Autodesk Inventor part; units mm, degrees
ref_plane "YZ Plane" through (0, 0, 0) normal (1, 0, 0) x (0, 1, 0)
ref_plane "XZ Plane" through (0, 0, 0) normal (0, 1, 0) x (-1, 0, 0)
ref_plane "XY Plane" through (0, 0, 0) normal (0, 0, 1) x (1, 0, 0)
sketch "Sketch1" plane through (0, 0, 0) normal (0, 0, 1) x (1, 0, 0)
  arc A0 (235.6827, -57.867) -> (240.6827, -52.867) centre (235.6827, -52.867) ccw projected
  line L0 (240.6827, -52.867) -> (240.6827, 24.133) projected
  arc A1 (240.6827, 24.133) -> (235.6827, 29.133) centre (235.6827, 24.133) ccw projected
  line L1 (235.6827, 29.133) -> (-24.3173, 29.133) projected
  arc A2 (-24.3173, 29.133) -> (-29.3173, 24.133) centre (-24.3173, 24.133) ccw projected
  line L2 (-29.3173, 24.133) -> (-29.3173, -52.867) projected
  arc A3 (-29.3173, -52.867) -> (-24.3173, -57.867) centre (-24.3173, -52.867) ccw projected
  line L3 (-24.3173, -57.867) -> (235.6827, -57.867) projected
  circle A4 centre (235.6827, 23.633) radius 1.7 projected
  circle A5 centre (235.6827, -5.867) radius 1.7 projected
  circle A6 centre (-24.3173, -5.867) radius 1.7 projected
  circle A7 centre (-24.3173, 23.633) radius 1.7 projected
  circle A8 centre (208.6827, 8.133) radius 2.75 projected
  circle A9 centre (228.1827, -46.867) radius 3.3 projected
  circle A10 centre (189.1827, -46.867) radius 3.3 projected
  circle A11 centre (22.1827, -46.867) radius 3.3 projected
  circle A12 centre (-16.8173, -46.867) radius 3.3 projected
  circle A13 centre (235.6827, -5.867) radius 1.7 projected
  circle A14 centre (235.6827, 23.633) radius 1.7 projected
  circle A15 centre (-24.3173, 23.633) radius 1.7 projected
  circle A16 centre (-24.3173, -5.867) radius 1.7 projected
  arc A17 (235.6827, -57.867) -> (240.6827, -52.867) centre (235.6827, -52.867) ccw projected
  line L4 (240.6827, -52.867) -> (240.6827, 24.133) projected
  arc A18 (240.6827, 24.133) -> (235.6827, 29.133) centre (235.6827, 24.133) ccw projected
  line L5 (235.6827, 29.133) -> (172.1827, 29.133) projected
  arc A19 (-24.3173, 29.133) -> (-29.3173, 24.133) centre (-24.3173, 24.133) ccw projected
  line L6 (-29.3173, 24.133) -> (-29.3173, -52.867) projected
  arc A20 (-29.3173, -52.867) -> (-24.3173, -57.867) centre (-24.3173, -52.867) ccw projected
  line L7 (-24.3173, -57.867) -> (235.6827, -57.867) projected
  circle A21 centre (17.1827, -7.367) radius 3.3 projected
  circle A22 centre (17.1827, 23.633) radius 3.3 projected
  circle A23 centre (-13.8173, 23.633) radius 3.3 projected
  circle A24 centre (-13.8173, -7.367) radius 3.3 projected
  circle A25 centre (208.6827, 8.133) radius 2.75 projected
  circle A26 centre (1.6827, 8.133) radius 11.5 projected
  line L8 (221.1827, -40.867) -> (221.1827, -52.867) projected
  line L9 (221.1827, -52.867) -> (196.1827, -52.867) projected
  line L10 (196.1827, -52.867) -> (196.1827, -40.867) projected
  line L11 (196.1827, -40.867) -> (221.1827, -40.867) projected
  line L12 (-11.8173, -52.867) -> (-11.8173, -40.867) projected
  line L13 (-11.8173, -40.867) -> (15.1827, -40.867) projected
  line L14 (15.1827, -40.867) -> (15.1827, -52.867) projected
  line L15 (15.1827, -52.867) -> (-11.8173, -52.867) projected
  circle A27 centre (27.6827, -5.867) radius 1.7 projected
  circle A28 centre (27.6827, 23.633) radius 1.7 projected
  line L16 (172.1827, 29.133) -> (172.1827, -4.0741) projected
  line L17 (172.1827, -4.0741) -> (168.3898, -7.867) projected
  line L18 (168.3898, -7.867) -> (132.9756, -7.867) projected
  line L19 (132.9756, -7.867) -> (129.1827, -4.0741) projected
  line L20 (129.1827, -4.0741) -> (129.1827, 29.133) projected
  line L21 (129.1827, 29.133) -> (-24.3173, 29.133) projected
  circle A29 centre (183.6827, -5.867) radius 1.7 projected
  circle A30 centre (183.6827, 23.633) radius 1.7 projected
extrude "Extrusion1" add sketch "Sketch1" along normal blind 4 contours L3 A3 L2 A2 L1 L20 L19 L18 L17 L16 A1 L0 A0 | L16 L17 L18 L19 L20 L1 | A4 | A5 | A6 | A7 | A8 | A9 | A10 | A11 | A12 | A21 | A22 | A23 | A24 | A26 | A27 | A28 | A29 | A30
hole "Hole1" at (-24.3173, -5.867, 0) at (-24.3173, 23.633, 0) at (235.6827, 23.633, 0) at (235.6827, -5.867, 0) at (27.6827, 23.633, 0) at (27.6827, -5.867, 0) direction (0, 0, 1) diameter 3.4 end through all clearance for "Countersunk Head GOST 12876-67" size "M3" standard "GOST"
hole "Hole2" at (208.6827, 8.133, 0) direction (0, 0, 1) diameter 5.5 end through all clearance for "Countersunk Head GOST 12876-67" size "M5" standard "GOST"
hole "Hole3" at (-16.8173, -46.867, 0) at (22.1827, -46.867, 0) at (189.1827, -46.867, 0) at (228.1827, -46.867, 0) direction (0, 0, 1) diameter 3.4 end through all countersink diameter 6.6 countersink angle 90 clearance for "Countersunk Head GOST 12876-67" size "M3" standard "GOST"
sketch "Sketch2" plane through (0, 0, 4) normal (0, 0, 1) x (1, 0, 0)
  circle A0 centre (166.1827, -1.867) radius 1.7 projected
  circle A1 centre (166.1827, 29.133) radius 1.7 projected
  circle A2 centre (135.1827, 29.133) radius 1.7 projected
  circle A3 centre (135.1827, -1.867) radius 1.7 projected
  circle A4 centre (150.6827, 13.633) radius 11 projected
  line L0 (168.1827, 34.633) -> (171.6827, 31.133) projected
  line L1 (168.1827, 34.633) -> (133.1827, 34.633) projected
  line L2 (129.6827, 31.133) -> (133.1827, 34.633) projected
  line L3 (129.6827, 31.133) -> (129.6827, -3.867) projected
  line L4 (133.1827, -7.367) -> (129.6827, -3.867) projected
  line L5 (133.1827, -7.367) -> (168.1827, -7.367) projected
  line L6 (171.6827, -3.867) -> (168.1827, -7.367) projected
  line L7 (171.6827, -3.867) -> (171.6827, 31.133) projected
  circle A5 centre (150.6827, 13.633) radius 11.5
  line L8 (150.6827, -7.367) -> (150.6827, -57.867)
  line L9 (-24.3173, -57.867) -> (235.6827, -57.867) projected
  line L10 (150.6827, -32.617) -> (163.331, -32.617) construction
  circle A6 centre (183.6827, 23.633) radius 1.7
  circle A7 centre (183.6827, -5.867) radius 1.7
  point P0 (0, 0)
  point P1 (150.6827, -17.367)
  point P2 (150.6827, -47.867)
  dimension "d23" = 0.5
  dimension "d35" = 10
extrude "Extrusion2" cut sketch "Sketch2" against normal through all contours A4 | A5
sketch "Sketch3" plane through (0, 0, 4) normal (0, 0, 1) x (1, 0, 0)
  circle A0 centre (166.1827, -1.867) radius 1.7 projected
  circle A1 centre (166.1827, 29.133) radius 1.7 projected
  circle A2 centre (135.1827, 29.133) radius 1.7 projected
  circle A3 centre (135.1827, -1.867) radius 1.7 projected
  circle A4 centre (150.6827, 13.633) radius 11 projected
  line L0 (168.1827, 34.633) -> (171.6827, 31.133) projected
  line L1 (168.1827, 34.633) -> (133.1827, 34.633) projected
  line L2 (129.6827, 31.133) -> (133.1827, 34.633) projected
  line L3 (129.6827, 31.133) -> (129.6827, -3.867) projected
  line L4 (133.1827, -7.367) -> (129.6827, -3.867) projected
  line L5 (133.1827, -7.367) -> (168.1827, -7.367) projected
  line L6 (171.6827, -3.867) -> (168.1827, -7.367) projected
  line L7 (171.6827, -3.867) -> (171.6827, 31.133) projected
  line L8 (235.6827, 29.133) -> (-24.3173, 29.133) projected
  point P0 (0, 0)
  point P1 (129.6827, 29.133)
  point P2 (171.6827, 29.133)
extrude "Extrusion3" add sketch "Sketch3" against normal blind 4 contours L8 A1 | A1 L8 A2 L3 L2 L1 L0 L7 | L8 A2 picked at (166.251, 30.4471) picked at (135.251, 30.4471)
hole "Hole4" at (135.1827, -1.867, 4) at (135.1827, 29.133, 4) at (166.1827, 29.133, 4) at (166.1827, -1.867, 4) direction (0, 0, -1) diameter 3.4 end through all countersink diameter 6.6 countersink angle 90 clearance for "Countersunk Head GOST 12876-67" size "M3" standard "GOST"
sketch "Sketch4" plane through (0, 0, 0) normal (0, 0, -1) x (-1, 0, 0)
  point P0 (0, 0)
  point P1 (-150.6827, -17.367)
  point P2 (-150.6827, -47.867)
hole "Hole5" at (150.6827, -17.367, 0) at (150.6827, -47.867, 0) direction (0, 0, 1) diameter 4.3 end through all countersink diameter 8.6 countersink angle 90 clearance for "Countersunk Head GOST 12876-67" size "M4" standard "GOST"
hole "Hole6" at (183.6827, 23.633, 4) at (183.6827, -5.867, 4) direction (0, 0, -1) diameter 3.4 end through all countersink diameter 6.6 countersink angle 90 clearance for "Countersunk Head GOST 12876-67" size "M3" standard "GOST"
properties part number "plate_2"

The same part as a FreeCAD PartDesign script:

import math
import FreeCAD as App
import Part
import Sketcher

doc = App.newDocument("Part")
body = doc.addObject("PartDesign::Body", "Body")

sketch1 = doc.addObject("Sketcher::SketchObject", "Sketch")
body.addObject(sketch1)
sketch1.AttachmentSupport = (doc.XY_Plane, [""])
sketch1.MapMode = "FlatFace"
sketch1.addGeometry([
    Part.LineSegment(App.Vector(-24, -58, 0), App.Vector(236, -58, 0)),
    Part.ArcOfCircle(Part.Circle(App.Vector(236, -53, 0), App.Vector(0, 0, 1), 5), math.radians(-90), math.radians(0)),
    Part.LineSegment(App.Vector(241, -53, 0), App.Vector(241, 24, 0)),
    Part.ArcOfCircle(Part.Circle(App.Vector(236, 24, 0), App.Vector(0, 0, 1), 5), math.radians(0), math.radians(90)),
    Part.LineSegment(App.Vector(236, 29, 0), App.Vector(-24, 29, 0)),
    Part.ArcOfCircle(Part.Circle(App.Vector(-24, 24, 0), App.Vector(0, 0, 1), 5), math.radians(90), math.radians(180)),
    Part.LineSegment(App.Vector(-29, 24, 0), App.Vector(-29, -53, 0)),
    Part.ArcOfCircle(Part.Circle(App.Vector(-24, -53, 0), App.Vector(0, 0, 1), 5), math.radians(180), math.radians(270)),
    Part.LineSegment(App.Vector(15, -53, 0), App.Vector(-12, -53, 0)),
    Part.LineSegment(App.Vector(-12, -53, 0), App.Vector(-12, -41, 0)),
    Part.LineSegment(App.Vector(-12, -41, 0), App.Vector(15, -41, 0)),
    Part.LineSegment(App.Vector(15, -41, 0), App.Vector(15, -53, 0)),
    Part.LineSegment(App.Vector(196, -41, 0), App.Vector(221, -41, 0)),
    Part.LineSegment(App.Vector(221, -41, 0), App.Vector(221, -53, 0)),
    Part.LineSegment(App.Vector(221, -53, 0), App.Vector(196, -53, 0)),
    Part.LineSegment(App.Vector(196, -53, 0), App.Vector(196, -41, 0)),
], False)
sketch1.addConstraint([
    Sketcher.Constraint("Tangent", 0, 2, 1, 1),
    Sketcher.Constraint("Tangent", 1, 2, 2, 1),
    Sketcher.Constraint("Tangent", 2, 2, 3, 1),
    Sketcher.Constraint("Tangent", 3, 2, 4, 1),
    Sketcher.Constraint("Tangent", 4, 2, 5, 1),
    Sketcher.Constraint("Tangent", 5, 2, 6, 1),
    Sketcher.Constraint("Tangent", 6, 2, 7, 1),
    Sketcher.Constraint("Tangent", 7, 2, 0, 1),
    Sketcher.Constraint("Coincident", 8, 2, 9, 1),
    Sketcher.Constraint("Coincident", 9, 2, 10, 1),
    Sketcher.Constraint("Coincident", 10, 2, 11, 1),
    Sketcher.Constraint("Coincident", 11, 2, 8, 1),
    Sketcher.Constraint("Coincident", 12, 2, 13, 1),
    Sketcher.Constraint("Coincident", 13, 2, 14, 1),
    Sketcher.Constraint("Coincident", 14, 2, 15, 1),
    Sketcher.Constraint("Coincident", 15, 2, 12, 1),
    Sketcher.Constraint("Horizontal", 0),
    Sketcher.Constraint("Vertical", 2),
    Sketcher.Constraint("Horizontal", 4),
    Sketcher.Constraint("Vertical", 6),
    Sketcher.Constraint("Horizontal", 8),
    Sketcher.Constraint("Vertical", 9),
    Sketcher.Constraint("Horizontal", 10),
    Sketcher.Constraint("Vertical", 11),
    Sketcher.Constraint("Horizontal", 12),
    Sketcher.Constraint("Vertical", 13),
    Sketcher.Constraint("Horizontal", 14),
    Sketcher.Constraint("Vertical", 15),
    Sketcher.Constraint("Equal", 1, 3),
    Sketcher.Constraint("Equal", 3, 5),
    Sketcher.Constraint("Equal", 5, 7),
    Sketcher.Constraint("Horizontal", 6, 2, 8, 2),
    Sketcher.Constraint("Horizontal", 10, 2, 12, 2),
    Sketcher.Constraint("Horizontal", 11, 2, 13, 2),
    Sketcher.Constraint("Radius", 1, 5.0),
    Sketcher.Constraint("DistanceX", 0, 1, 0, 2, 260.0),
    Sketcher.Constraint("DistanceX", 8, 2, 8, 1, 27.0),
    Sketcher.Constraint("DistanceX", 12, 1, 12, 2, 25.0),
    Sketcher.Constraint("DistanceY", 2, 1, 2, 2, 77.0),
    Sketcher.Constraint("DistanceY", 9, 1, 9, 2, 12.0),
    Sketcher.Constraint("DistanceX", 7, 3, 8, 2, 12.5),
    Sketcher.Constraint("DistanceX", 12, 2, 1, 3, 14.5),
    Sketcher.Constraint("DistanceY", 1, 3, -1, 1, 52.867),
    Sketcher.Constraint("DistanceX", -1, 1, 1, 3, 235.6827),
])
pad1 = doc.addObject("PartDesign::Pad", "Pad")
body.addObject(pad1)
pad1.Profile = sketch1
pad1.Length = 4

sketch2 = doc.addObject("Sketcher::SketchObject", "Sketch001")
body.addObject(sketch2)
sketch2.AttachmentSupport = (doc.XY_Plane, [""])
sketch2.MapMode = "FlatFace"
sketch2.addGeometry([
    Part.Circle(App.Vector(-24.3, -5.9, 0), App.Vector(0, 0, 1), 1.7),
    Part.Circle(App.Vector(-24.3, 23.6, 0), App.Vector(0, 0, 1), 1.7),
    Part.Circle(App.Vector(235.7, 23.6, 0), App.Vector(0, 0, 1), 1.7),
    Part.Circle(App.Vector(235.7, -5.9, 0), App.Vector(0, 0, 1), 1.7),
    Part.Circle(App.Vector(27.7, 23.6, 0), App.Vector(0, 0, 1), 1.7),
    Part.Circle(App.Vector(27.7, -5.9, 0), App.Vector(0, 0, 1), 1.7),
], False)
sketch2.addConstraint([
    Sketcher.Constraint("Equal", 0, 1),
    Sketcher.Constraint("Equal", 1, 2),
    Sketcher.Constraint("Equal", 2, 3),
    Sketcher.Constraint("Equal", 3, 4),
    Sketcher.Constraint("Equal", 4, 5),
    Sketcher.Constraint("Horizontal", 1, 3, 2, 3),
    Sketcher.Constraint("Horizontal", 0, 3, 3, 3),
    Sketcher.Constraint("Horizontal", 2, 3, 4, 3),
    Sketcher.Constraint("Horizontal", 3, 3, 5, 3),
    Sketcher.Constraint("Vertical", 0, 3, 1, 3),
    Sketcher.Constraint("Vertical", 2, 3, 3, 3),
    Sketcher.Constraint("Vertical", 4, 3, 5, 3),
    Sketcher.Constraint("Diameter", 0, 3.4),
    Sketcher.Constraint("DistanceX", 1, 3, 2, 3, 260.0),
    Sketcher.Constraint("DistanceX", 1, 3, 4, 3, 52.0),
    Sketcher.Constraint("DistanceY", 0, 3, 1, 3, 29.5),
    Sketcher.Constraint("DistanceY", 0, 3, -1, 1, 5.867),
    Sketcher.Constraint("DistanceX", 0, 3, -1, 1, 24.3173),
])
doc.recompute()
hole = doc.addObject("PartDesign::Hole", "Hole")
body.addObject(hole)
hole.Profile = sketch2
hole.ThreadType = "None"
hole.Diameter = 3.4
hole.DepthType = "ThroughAll"
hole.Reversed = True

sketch3 = doc.addObject("Sketcher::SketchObject", "Sketch002")
body.addObject(sketch3)
sketch3.AttachmentSupport = (doc.XY_Plane, [""])
sketch3.MapMode = "FlatFace"
sketch3.addGeometry(Part.Circle(App.Vector(208.7, 8.1, 0), App.Vector(0, 0, 1), 2.8), False)
sketch3.addConstraint([
    Sketcher.Constraint("Diameter", 0, 5.5),
    Sketcher.Constraint("DistanceY", -1, 1, 0, 3, 8.133),
    Sketcher.Constraint("DistanceX", -1, 1, 0, 3, 208.6827),
])
doc.recompute()
hole2 = doc.addObject("PartDesign::Hole", "Hole001")
body.addObject(hole2)
hole2.Profile = sketch3
hole2.ThreadType = "None"
hole2.Diameter = 5.5
hole2.DepthType = "ThroughAll"
hole2.Reversed = True

sketch4 = doc.addObject("Sketcher::SketchObject", "Sketch003")
body.addObject(sketch4)
sketch4.AttachmentSupport = (doc.XY_Plane, [""])
sketch4.MapMode = "FlatFace"
sketch4.addGeometry([
    Part.Circle(App.Vector(-16.8, -46.9, 0), App.Vector(0, 0, 1), 1.7),
    Part.Circle(App.Vector(22.2, -46.9, 0), App.Vector(0, 0, 1), 1.7),
    Part.Circle(App.Vector(189.2, -46.9, 0), App.Vector(0, 0, 1), 1.7),
    Part.Circle(App.Vector(228.2, -46.9, 0), App.Vector(0, 0, 1), 1.7),
], False)
sketch4.addConstraint([
    Sketcher.Constraint("Equal", 0, 1),
    Sketcher.Constraint("Equal", 1, 2),
    Sketcher.Constraint("Equal", 2, 3),
    Sketcher.Constraint("Horizontal", 0, 3, 1, 3),
    Sketcher.Constraint("Horizontal", 1, 3, 2, 3),
    Sketcher.Constraint("Horizontal", 2, 3, 3, 3),
    Sketcher.Constraint("Diameter", 0, 3.4),
    Sketcher.Constraint("DistanceX", 0, 3, 1, 3, 39.0),
    Sketcher.Constraint("DistanceX", 1, 3, 2, 3, 167.0),
    Sketcher.Constraint("DistanceX", 2, 3, 3, 3, 39.0),
    Sketcher.Constraint("DistanceY", 0, 3, -1, 1, 46.867),
    Sketcher.Constraint("DistanceX", 0, 3, -1, 1, 16.8173),
])
doc.recompute()
hole3 = doc.addObject("PartDesign::Hole", "Hole002")
body.addObject(hole3)
hole3.Profile = sketch4
hole3.ThreadType = "None"
hole3.Diameter = 3.4
hole3.DepthType = "ThroughAll"
hole3.HoleCutType = "Countersink"
hole3.HoleCutDiameter = 6.6
hole3.HoleCutCountersinkAngle = 90
hole3.Reversed = True

sketch5 = doc.addObject("Sketcher::SketchObject", "Sketch004")
body.addObject(sketch5)
sketch5.AttachmentSupport = (doc.XY_Plane, [""])
sketch5.MapMode = "FlatFace"
sketch5.AttachmentOffset = App.Placement(App.Vector(0, 0, 4), App.Rotation())
sketch5.addGeometry(Part.Circle(App.Vector(151, 14, 0), App.Vector(0, 0, 1), 12), False)
sketch5.addConstraint([
    Sketcher.Constraint("Diameter", 0, 23.0),
    Sketcher.Constraint("DistanceY", -1, 1, 0, 3, 13.633),
    Sketcher.Constraint("DistanceX", -1, 1, 0, 3, 150.6827),
])
pocket1 = doc.addObject("PartDesign::Pocket", "Pocket")
body.addObject(pocket1)
pocket1.Profile = sketch5
pocket1.Type = "ThroughAll"

sketch6 = doc.addObject("Sketcher::SketchObject", "Sketch005")
body.addObject(sketch6)
sketch6.AttachmentSupport = (doc.XY_Plane, [""])
sketch6.MapMode = "FlatFace"
sketch6.AttachmentOffset = App.Placement(App.Vector(0, 0, 4), App.Rotation())
sketch6.addGeometry([
    Part.LineSegment(App.Vector(171.7, 29.1, 0), App.Vector(171.7, 31.1, 0)),
    Part.LineSegment(App.Vector(171.7, 31.1, 0), App.Vector(168.2, 34.6, 0)),
    Part.LineSegment(App.Vector(168.2, 34.6, 0), App.Vector(133.2, 34.6, 0)),
    Part.LineSegment(App.Vector(133.2, 34.6, 0), App.Vector(129.7, 31.1, 0)),
    Part.LineSegment(App.Vector(129.7, 31.1, 0), App.Vector(129.7, 29.1, 0)),
    Part.LineSegment(App.Vector(129.7, 29.1, 0), App.Vector(171.7, 29.1, 0)),
], False)
sketch6.addConstraint([
    Sketcher.Constraint("Coincident", 0, 2, 1, 1),
    Sketcher.Constraint("Coincident", 1, 2, 2, 1),
    Sketcher.Constraint("Coincident", 2, 2, 3, 1),
    Sketcher.Constraint("Coincident", 3, 2, 4, 1),
    Sketcher.Constraint("Coincident", 4, 2, 5, 1),
    Sketcher.Constraint("Coincident", 5, 2, 0, 1),
    Sketcher.Constraint("Vertical", 0),
    Sketcher.Constraint("Horizontal", 2),
    Sketcher.Constraint("Vertical", 4),
    Sketcher.Constraint("Horizontal", 5),
    Sketcher.Constraint("Perpendicular", 1, 3),
    Sketcher.Constraint("Horizontal", 0, 2, 3, 2),
    Sketcher.Constraint("Equal", 1, 3),
    Sketcher.Constraint("DistanceX", 2, 2, 2, 1, 35.0),
    Sketcher.Constraint("DistanceX", 5, 1, 5, 2, 42.0),
    Sketcher.Constraint("DistanceY", 0, 1, 0, 2, 2.0),
    Sketcher.Constraint("DistanceY", -1, 1, 0, 2, 31.133),
    Sketcher.Constraint("DistanceX", -1, 1, 0, 2, 171.6827),
])
pad2 = doc.addObject("PartDesign::Pad", "Pad001")
body.addObject(pad2)
pad2.Profile = sketch6
pad2.Length = 4
pad2.Reversed = True

sketch7 = doc.addObject("Sketcher::SketchObject", "Sketch006")
body.addObject(sketch7)
sketch7.AttachmentSupport = (doc.XY_Plane, [""])
sketch7.MapMode = "FlatFace"
sketch7.AttachmentOffset = App.Placement(App.Vector(0, 0, 4), App.Rotation())
sketch7.addGeometry([
    Part.Circle(App.Vector(135.2, -1.9, 0), App.Vector(0, 0, 1), 1.7),
    Part.Circle(App.Vector(135.2, 29.1, 0), App.Vector(0, 0, 1), 1.7),
    Part.Circle(App.Vector(166.2, 29.1, 0), App.Vector(0, 0, 1), 1.7),
    Part.Circle(App.Vector(166.2, -1.9, 0), App.Vector(0, 0, 1), 1.7),
], False)
sketch7.addConstraint([
    Sketcher.Constraint("Equal", 0, 1),
    Sketcher.Constraint("Equal", 1, 2),
    Sketcher.Constraint("Equal", 2, 3),
    Sketcher.Constraint("Horizontal", 1, 3, 2, 3),
    Sketcher.Constraint("Horizontal", 0, 3, 3, 3),
    Sketcher.Constraint("Vertical", 0, 3, 1, 3),
    Sketcher.Constraint("Vertical", 2, 3, 3, 3),
    Sketcher.Constraint("Diameter", 0, 3.4),
    Sketcher.Constraint("DistanceY", 0, 3, 1, 3, 31.0),
    Sketcher.Constraint("DistanceX", 1, 3, 2, 3, 31.0),
    Sketcher.Constraint("DistanceY", 0, 3, -1, 1, 1.867),
    Sketcher.Constraint("DistanceX", -1, 1, 0, 3, 135.1827),
])
doc.recompute()
hole4 = doc.addObject("PartDesign::Hole", "Hole003")
body.addObject(hole4)
hole4.Profile = sketch7
hole4.ThreadType = "None"
hole4.Diameter = 3.4
hole4.DepthType = "ThroughAll"
hole4.HoleCutType = "Countersink"
hole4.HoleCutDiameter = 6.6
hole4.HoleCutCountersinkAngle = 90

sketch8 = doc.addObject("Sketcher::SketchObject", "Sketch007")
body.addObject(sketch8)
sketch8.AttachmentSupport = (doc.XY_Plane, [""])
sketch8.MapMode = "FlatFace"
sketch8.addGeometry([
    Part.Circle(App.Vector(150.7, -17.4, 0), App.Vector(0, 0, 1), 2.1),
    Part.Circle(App.Vector(150.7, -47.9, 0), App.Vector(0, 0, 1), 2.1),
], False)
sketch8.addConstraint([
    Sketcher.Constraint("Equal", 0, 1),
    Sketcher.Constraint("Vertical", 0, 3, 1, 3),
    Sketcher.Constraint("Diameter", 0, 4.3),
    Sketcher.Constraint("DistanceY", 1, 3, 0, 3, 30.5),
    Sketcher.Constraint("DistanceY", 0, 3, -1, 1, 17.367),
    Sketcher.Constraint("DistanceX", -1, 1, 0, 3, 150.6827),
])
doc.recompute()
hole5 = doc.addObject("PartDesign::Hole", "Hole004")
body.addObject(hole5)
hole5.Profile = sketch8
hole5.ThreadType = "None"
hole5.Diameter = 4.3
hole5.DepthType = "ThroughAll"
hole5.HoleCutType = "Countersink"
hole5.HoleCutDiameter = 8.6
hole5.HoleCutCountersinkAngle = 90
hole5.Reversed = True

sketch9 = doc.addObject("Sketcher::SketchObject", "Sketch008")
body.addObject(sketch9)
sketch9.AttachmentSupport = (doc.XY_Plane, [""])
sketch9.MapMode = "FlatFace"
sketch9.AttachmentOffset = App.Placement(App.Vector(0, 0, 4), App.Rotation())
sketch9.addGeometry([
    Part.Circle(App.Vector(183.7, 23.6, 0), App.Vector(0, 0, 1), 1.7),
    Part.Circle(App.Vector(183.7, -5.9, 0), App.Vector(0, 0, 1), 1.7),
], False)
sketch9.addConstraint([
    Sketcher.Constraint("Equal", 0, 1),
    Sketcher.Constraint("Vertical", 0, 3, 1, 3),
    Sketcher.Constraint("Diameter", 0, 3.4),
    Sketcher.Constraint("DistanceY", 1, 3, 0, 3, 29.5),
    Sketcher.Constraint("DistanceY", -1, 1, 0, 3, 23.633),
    Sketcher.Constraint("DistanceX", -1, 1, 0, 3, 183.6827),
])
doc.recompute()
hole6 = doc.addObject("PartDesign::Hole", "Hole005")
body.addObject(hole6)
hole6.Profile = sketch9
hole6.ThreadType = "None"
hole6.Diameter = 3.4
hole6.DepthType = "ThroughAll"
hole6.HoleCutType = "Countersink"
hole6.HoleCutDiameter = 6.6
hole6.HoleCutCountersinkAngle = 90

doc.recompute()
